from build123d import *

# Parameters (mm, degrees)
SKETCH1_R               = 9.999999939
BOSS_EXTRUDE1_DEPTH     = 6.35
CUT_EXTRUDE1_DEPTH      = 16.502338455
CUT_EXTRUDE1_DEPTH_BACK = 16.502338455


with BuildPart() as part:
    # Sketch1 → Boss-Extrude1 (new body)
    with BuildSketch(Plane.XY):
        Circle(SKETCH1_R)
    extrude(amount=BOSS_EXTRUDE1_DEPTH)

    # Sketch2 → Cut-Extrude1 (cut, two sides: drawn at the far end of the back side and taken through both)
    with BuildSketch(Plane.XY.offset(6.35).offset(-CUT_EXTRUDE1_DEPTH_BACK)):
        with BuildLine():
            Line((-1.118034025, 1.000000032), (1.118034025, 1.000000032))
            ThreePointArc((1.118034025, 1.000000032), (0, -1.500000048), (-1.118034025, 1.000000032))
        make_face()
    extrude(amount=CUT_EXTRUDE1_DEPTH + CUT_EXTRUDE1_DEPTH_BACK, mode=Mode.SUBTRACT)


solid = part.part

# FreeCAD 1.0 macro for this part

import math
import FreeCAD as App
import Part
import Sketcher
from FreeCAD import Vector

doc = App.newDocument("Part")
params = doc.addObject("Spreadsheet::Sheet", "Params")
for row, (alias, value) in enumerate([
    ("sketch1_diameter", "20 mm"),
    ("pad1_length", "6.35 mm"),
    ("sketch2_radius", "1.5 mm"),
], start=1):
    params.set(f"A{row}", alias)
    params.set(f"B{row}", "=" + value)
    params.setAlias(f"B{row}", alias)

body = doc.addObject("PartDesign::Body", "Body")

# Sketch on XY plane
sketch1 = body.newObject("Sketcher::SketchObject", "Sketch")
sketch1.AttachmentSupport = (doc.getObject("XY_Plane"), [""])
sketch1.MapMode = "FlatFace"
sketch1.addGeometry(Part.Circle(Vector(0, 0, 0), Vector(0, 0, 1), 10), False)
sketch1.addConstraint(Sketcher.Constraint("Coincident", 0, 3, -1, 1))
sketch1.addConstraint(Sketcher.Constraint("Diameter", 0, 20.0))
sketch1.setExpression("Constraints[1]", "Params.sketch1_diameter")
pad1 = body.newObject("PartDesign::Pad", "Pad")
pad1.Profile = sketch1
pad1.setExpression("Length", "Params.pad1_length")

# Sketch on XY plane
sketch2 = body.newObject("Sketcher::SketchObject", "Sketch001")
sketch2.AttachmentSupport = (doc.getObject("XY_Plane"), [""])
sketch2.MapMode = "FlatFace"
sketch2.AttachmentOffset = App.Placement(Vector(0, 0, 6.35), App.Rotation())
sketch2.addGeometry(Part.LineSegment(Vector(1.1, 1, 0), Vector(-1.1, 1, 0)), False)
sketch2.addGeometry(Part.ArcOfCircle(Part.Circle(Vector(0, 0, 0), Vector(0, 0, 1), 1.5), math.radians(138), math.radians(402)), False)
sketch2.addConstraint(Sketcher.Constraint("Coincident", 0, 1, 1, 2))
sketch2.addConstraint(Sketcher.Constraint("Coincident", 1, 1, 0, 2))
sketch2.addConstraint(Sketcher.Constraint("Horizontal", 0))
sketch2.addConstraint(Sketcher.Constraint("Coincident", 1, 3, -1, 1))
sketch2.addConstraint(Sketcher.Constraint("Radius", 1, 1.5))
sketch2.addConstraint(Sketcher.Constraint("DistanceY", -1, 1, 0, 1, 1.0))
sketch2.setExpression("Constraints[4]", "Params.sketch2_radius")
pocket1 = body.newObject("PartDesign::Pocket", "Pocket")
pocket1.Profile = sketch2
pocket1.Type = "ThroughAll"
pocket1.Midplane = True

doc.recompute()
